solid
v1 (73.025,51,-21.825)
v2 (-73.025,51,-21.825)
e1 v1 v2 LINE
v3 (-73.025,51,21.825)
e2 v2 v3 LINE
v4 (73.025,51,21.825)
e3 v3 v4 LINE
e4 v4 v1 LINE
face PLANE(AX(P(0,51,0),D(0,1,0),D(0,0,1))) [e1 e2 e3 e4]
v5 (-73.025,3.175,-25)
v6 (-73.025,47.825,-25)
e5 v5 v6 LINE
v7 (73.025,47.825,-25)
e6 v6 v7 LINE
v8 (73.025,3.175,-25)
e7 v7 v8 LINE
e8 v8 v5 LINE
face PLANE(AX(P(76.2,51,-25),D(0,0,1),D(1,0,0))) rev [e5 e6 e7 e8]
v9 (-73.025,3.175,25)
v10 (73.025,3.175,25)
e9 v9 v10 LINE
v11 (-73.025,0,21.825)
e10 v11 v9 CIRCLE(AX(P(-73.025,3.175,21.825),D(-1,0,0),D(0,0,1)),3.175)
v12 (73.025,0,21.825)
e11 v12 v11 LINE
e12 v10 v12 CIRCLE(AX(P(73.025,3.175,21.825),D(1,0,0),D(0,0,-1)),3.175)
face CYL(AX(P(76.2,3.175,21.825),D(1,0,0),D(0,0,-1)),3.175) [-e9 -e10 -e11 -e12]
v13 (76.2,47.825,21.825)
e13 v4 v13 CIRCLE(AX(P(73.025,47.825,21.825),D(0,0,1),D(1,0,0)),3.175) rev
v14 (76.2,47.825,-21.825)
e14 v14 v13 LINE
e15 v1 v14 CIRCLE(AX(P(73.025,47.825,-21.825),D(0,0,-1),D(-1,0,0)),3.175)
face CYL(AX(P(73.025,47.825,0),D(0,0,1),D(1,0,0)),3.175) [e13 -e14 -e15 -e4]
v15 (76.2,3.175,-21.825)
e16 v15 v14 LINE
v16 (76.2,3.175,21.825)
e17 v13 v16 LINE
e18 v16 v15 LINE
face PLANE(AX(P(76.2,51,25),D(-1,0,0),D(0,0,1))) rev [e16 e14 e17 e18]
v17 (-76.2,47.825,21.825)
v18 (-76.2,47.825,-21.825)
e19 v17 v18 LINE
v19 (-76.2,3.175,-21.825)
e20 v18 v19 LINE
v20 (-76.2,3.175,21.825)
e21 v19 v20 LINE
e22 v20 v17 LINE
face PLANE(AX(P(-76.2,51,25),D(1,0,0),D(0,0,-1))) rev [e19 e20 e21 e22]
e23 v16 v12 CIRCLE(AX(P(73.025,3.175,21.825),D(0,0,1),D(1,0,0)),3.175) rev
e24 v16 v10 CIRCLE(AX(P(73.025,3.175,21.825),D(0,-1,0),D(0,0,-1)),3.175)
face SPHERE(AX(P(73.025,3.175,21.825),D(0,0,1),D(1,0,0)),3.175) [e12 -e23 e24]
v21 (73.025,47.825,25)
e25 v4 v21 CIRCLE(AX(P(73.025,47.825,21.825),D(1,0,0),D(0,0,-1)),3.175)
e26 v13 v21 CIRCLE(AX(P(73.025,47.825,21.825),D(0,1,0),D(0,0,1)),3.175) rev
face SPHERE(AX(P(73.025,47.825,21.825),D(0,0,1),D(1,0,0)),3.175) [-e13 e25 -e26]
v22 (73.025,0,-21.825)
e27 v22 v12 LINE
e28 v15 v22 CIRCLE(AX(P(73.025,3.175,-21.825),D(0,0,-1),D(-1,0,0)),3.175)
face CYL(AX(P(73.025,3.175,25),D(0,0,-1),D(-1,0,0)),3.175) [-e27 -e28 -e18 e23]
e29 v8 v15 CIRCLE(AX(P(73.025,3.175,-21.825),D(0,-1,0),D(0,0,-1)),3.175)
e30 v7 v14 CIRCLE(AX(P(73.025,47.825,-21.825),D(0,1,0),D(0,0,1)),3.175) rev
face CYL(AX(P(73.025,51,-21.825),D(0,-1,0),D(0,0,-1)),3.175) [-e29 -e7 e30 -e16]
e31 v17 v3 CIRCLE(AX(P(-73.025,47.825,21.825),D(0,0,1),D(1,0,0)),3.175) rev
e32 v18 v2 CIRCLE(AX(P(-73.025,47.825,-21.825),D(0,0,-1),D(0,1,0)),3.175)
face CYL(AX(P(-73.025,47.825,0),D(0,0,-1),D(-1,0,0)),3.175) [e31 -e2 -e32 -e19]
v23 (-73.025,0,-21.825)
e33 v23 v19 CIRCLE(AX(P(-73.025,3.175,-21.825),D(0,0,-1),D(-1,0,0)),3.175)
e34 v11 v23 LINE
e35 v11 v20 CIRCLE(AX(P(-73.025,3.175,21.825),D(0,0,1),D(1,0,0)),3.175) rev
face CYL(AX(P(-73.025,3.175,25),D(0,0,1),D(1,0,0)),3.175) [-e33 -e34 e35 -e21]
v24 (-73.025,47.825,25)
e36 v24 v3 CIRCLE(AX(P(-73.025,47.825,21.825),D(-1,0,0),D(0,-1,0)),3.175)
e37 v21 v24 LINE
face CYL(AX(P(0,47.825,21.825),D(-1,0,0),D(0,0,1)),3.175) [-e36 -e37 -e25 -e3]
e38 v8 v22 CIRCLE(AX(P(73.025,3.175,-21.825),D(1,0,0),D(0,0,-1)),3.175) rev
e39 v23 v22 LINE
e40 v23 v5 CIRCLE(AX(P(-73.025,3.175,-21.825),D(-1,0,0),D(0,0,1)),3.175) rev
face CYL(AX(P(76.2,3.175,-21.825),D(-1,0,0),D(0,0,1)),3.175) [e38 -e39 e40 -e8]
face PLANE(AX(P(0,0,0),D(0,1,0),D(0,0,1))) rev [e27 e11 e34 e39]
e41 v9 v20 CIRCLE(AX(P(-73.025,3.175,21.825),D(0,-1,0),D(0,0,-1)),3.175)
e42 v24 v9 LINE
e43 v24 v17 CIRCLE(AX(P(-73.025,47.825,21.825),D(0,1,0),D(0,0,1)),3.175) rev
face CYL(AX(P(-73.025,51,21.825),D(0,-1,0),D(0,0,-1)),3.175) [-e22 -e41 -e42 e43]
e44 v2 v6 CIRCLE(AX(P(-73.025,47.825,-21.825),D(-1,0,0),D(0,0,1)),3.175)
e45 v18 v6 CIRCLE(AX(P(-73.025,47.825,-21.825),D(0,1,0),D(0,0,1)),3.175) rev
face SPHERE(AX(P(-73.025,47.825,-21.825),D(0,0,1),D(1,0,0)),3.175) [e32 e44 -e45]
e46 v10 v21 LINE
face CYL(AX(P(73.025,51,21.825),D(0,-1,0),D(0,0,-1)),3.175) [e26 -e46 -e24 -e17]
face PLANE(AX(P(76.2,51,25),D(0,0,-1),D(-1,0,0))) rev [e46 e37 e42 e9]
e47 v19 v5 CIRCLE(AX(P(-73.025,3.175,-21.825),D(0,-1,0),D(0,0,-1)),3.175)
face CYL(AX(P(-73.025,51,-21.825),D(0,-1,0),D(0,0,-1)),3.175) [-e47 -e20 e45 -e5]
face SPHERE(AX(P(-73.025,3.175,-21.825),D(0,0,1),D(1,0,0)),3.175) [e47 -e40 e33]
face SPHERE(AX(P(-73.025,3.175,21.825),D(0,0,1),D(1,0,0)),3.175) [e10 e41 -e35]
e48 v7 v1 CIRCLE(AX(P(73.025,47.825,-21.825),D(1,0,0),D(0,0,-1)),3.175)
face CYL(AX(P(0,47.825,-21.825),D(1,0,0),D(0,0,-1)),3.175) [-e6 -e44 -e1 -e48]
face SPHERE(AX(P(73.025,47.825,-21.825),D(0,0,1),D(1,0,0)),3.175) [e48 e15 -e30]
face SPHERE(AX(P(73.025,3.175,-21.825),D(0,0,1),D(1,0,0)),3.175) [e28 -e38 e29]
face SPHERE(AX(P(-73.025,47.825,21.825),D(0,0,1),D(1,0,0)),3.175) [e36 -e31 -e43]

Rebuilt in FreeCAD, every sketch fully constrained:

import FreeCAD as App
import Part
import Sketcher
Q = App.Units.Quantity


def add_polygon(sketch, points):
    """Adds a closed chain of lines whose ends are joined by coincident constraints."""
    first, n = sketch.GeometryCount, len(points)
    for a, b in zip(points, points[1:] + points[:1]):
        sketch.addGeometry(Part.LineSegment(App.Vector(*a, 0), App.Vector(*b, 0)), False)
    for i in range(n):
        sketch.addConstraint(Sketcher.Constraint("Coincident", first + i, 2, first + (i + 1) % n, 1))

doc = App.newDocument("Part")
body = doc.addObject("PartDesign::Body", "Body")

sketch1 = body.newObject("Sketcher::SketchObject", "Sketch")
sketch1.AttachmentSupport = (doc.getObject("XZ_Plane"), [""])
sketch1.MapMode = "FlatFace"
add_polygon(sketch1, [(-76, -25), (-76, 25), (76, 25), (76, -25)])
sketch1.addConstraint(Sketcher.Constraint("Vertical", 0))
sketch1.addConstraint(Sketcher.Constraint("Horizontal", 1))
sketch1.addConstraint(Sketcher.Constraint("Vertical", 2))
sketch1.addConstraint(Sketcher.Constraint("Horizontal", 3))
sketch1.addConstraint(Sketcher.Constraint("Symmetric", 0, 2, 2, 2, -1, 1))
sketch1.addConstraint(Sketcher.Constraint("DistanceY", 0, 1, 0, 2, Q("50 mm")))
sketch1.addConstraint(Sketcher.Constraint("DistanceX", 1, 1, 1, 2, Q("152.4 mm")))
pad1 = body.newObject("PartDesign::Pad", "Pad")
pad1.Profile = sketch1
pad1.Length = 51
pad1.Reversed = True
doc.recompute()

fillet = body.newObject("PartDesign::Fillet", "Fillet")
fillet.Base = (pad1, ["Edge1"])
fillet.UseAllEdges = True
fillet.Radius = 3.175

doc.recompute()
